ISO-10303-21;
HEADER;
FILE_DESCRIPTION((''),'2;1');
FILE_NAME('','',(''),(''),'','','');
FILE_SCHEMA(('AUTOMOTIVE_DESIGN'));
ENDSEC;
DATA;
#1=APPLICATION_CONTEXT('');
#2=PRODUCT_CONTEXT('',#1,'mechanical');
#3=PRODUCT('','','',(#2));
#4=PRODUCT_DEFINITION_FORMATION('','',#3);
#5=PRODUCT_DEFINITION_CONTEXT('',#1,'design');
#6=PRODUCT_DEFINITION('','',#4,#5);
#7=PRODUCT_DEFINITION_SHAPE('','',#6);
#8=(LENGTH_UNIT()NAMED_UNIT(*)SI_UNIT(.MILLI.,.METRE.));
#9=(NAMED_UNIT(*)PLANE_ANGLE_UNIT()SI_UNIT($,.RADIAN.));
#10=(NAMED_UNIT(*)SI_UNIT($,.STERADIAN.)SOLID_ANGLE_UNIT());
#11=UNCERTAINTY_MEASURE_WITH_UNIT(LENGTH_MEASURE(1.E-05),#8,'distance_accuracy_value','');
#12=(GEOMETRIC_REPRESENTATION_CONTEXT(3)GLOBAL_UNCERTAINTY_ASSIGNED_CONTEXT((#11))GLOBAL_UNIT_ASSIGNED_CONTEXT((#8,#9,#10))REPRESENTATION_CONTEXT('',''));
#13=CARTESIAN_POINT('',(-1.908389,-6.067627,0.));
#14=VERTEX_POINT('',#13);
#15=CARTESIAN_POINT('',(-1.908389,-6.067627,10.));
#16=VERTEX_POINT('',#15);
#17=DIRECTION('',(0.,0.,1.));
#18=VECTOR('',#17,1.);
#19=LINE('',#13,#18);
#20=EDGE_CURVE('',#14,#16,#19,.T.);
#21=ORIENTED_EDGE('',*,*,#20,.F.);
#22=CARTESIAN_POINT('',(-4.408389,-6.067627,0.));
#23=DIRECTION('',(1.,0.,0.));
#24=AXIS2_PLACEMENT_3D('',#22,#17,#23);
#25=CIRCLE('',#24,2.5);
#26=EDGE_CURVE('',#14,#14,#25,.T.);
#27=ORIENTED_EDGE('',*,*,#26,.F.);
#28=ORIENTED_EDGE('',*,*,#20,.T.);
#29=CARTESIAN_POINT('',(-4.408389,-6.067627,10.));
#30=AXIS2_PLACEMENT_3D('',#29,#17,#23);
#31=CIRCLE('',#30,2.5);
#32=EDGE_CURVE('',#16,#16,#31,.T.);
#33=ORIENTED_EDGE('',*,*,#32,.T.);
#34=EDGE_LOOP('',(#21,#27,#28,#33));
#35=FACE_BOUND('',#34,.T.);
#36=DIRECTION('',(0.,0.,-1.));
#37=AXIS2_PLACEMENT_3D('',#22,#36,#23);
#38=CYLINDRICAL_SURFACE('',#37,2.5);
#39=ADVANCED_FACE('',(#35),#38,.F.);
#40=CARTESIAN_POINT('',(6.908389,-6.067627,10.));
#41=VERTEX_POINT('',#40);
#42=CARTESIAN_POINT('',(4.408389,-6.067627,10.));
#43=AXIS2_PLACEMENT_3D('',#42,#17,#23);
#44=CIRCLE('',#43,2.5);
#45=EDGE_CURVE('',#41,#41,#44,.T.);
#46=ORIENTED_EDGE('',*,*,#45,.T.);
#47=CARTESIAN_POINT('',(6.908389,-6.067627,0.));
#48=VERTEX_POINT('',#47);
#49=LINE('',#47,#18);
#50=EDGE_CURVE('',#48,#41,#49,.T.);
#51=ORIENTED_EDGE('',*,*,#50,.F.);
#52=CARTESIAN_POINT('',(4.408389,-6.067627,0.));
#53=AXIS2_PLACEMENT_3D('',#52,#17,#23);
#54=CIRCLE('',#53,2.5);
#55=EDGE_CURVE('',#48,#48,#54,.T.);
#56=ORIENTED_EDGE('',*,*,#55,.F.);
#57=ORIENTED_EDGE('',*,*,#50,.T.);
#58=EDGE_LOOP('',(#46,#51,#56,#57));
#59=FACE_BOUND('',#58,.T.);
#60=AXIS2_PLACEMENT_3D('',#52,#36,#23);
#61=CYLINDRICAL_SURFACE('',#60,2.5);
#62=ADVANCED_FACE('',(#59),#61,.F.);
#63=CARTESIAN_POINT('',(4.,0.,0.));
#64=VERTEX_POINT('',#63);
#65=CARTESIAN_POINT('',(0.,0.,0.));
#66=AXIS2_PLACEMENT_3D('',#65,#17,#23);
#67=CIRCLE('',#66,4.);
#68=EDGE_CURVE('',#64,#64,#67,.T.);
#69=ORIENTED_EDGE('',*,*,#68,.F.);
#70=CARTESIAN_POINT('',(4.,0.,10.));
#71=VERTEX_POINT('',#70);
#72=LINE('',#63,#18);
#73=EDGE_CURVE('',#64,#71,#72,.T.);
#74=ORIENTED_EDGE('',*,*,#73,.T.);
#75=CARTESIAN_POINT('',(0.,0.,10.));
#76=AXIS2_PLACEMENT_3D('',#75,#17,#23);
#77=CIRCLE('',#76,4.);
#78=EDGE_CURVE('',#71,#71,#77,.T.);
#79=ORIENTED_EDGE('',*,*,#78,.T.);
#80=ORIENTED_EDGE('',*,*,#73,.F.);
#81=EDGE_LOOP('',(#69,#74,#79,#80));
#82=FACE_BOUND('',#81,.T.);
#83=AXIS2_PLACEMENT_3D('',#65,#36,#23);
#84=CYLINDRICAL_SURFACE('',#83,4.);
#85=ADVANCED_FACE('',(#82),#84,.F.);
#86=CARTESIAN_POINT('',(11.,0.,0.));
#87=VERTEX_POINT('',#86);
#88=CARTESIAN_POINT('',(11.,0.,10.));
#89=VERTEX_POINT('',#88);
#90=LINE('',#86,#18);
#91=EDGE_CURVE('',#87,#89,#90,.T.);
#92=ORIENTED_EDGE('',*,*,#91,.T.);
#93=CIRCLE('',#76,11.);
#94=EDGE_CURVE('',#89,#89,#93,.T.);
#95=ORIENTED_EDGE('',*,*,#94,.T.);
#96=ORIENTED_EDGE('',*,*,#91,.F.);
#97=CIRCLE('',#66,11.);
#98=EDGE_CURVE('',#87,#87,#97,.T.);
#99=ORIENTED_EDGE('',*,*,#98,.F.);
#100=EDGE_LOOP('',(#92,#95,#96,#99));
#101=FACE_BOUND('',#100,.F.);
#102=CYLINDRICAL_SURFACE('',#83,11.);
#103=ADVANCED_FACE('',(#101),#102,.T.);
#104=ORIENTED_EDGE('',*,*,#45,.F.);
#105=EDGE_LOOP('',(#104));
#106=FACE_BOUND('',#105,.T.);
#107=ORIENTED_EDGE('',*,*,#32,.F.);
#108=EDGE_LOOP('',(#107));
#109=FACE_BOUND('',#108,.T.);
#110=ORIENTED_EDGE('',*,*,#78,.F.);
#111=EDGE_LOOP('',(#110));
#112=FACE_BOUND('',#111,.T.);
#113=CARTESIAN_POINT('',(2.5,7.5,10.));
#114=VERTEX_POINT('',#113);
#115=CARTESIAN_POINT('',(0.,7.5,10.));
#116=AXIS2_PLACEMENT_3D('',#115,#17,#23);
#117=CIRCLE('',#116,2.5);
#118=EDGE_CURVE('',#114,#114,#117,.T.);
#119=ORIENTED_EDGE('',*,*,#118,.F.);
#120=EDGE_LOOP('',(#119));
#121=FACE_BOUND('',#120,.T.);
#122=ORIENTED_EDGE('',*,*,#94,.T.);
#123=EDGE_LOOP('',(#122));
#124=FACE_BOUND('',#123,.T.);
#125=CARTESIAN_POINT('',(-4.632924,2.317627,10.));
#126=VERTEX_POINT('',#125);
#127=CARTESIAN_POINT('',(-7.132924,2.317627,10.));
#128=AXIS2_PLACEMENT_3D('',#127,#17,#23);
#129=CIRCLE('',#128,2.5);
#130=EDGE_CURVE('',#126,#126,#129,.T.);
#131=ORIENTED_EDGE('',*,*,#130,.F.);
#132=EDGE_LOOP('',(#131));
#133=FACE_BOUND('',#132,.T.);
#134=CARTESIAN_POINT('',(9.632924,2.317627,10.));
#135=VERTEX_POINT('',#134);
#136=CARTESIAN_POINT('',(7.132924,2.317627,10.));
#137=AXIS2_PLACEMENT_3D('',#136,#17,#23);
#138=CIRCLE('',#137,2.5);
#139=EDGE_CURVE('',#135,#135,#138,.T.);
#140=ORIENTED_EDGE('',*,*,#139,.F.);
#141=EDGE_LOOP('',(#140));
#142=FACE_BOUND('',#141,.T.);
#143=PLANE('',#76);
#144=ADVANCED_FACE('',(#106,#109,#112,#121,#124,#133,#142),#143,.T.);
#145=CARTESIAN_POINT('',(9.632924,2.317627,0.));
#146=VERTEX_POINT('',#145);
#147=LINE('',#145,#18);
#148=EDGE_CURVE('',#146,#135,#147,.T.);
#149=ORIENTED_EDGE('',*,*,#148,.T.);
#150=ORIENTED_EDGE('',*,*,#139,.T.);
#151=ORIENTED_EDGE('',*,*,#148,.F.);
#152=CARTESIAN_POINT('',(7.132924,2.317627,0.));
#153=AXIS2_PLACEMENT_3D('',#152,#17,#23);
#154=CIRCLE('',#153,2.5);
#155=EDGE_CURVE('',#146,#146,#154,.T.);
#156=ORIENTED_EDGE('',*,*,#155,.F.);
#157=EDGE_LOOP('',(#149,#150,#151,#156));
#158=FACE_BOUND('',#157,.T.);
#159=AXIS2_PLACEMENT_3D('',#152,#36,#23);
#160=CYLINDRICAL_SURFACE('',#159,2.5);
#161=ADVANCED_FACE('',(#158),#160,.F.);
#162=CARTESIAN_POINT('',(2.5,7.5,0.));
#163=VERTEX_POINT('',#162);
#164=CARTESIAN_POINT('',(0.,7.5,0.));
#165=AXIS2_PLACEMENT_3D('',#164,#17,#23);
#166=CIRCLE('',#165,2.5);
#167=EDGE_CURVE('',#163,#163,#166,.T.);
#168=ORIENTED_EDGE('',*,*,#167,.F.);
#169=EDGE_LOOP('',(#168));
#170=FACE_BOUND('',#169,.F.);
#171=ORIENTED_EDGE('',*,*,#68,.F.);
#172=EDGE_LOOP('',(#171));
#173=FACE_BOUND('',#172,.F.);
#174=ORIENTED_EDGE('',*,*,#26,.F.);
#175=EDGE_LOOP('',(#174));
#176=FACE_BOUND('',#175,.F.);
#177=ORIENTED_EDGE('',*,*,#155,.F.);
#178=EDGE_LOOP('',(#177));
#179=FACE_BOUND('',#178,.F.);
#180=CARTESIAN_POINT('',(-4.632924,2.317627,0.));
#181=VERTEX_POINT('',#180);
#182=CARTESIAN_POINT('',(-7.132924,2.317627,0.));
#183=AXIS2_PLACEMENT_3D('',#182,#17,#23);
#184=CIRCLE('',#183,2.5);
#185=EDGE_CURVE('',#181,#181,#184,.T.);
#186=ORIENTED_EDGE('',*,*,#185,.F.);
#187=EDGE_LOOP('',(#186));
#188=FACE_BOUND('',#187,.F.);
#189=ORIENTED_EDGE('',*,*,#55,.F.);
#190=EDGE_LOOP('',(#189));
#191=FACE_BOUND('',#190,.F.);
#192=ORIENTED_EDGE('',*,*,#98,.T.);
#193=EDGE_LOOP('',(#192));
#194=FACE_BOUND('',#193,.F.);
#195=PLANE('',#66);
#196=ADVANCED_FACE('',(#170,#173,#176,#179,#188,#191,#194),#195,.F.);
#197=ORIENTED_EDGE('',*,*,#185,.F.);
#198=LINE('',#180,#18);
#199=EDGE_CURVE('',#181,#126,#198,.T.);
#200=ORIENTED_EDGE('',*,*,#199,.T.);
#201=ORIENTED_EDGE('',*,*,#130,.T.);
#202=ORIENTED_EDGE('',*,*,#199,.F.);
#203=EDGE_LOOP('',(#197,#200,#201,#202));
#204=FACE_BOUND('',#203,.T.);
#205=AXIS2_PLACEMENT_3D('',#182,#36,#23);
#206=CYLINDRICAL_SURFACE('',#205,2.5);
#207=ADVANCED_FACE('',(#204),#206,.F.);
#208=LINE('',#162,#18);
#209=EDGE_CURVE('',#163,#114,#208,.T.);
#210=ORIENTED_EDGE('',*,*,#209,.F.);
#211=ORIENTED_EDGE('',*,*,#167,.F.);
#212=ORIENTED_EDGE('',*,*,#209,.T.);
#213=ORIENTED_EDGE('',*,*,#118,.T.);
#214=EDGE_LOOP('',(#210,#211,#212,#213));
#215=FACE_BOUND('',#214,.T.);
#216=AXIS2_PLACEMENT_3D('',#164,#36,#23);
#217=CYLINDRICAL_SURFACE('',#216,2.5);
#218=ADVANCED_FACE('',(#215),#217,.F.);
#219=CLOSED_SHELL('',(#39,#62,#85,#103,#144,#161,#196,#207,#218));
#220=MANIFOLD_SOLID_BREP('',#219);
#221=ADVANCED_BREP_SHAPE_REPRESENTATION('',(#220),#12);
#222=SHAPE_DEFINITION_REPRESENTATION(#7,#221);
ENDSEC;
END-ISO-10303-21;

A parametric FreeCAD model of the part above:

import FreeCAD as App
import Part
import Sketcher
from FreeCAD import Vector
Q = App.Units.Quantity

doc = App.newDocument("Part")
body = doc.addObject("PartDesign::Body", "Body")

sketch1 = doc.addObject("Sketcher::SketchObject", "Sketch")
body.addObject(sketch1)
sketch1.AttachmentSupport = (doc.XY_Plane, [""])
sketch1.MapMode = "FlatFace"
sketch1.addGeometry(Part.Circle(Vector(0, 0, 0), Vector(0, 0, 1), 11), False)
sketch1.addGeometry(Part.Circle(Vector(-4.4, -6.1, 0), Vector(0, 0, 1), 2.5), False)
sketch1.addGeometry(Part.Circle(Vector(4.4, -6.1, 0), Vector(0, 0, 1), 2.5), False)
sketch1.addGeometry(Part.Circle(Vector(0, 0, 0), Vector(0, 0, 1), 4), False)
sketch1.addGeometry(Part.Circle(Vector(-7.1, 2.3, 0), Vector(0, 0, 1), 2.5), False)
sketch1.addGeometry(Part.Circle(Vector(7.1, 2.3, 0), Vector(0, 0, 1), 2.5), False)
sketch1.addGeometry(Part.Circle(Vector(0, 7.5, 0), Vector(0, 0, 1), 2.5), False)
sketch1.addConstraint(Sketcher.Constraint("Coincident", 0, 3, -1, 1))
sketch1.addConstraint(Sketcher.Constraint("Coincident", 3, 3, -1, 1))
sketch1.addConstraint(Sketcher.Constraint("Equal", 1, 2))
sketch1.addConstraint(Sketcher.Constraint("Equal", 2, 4))
sketch1.addConstraint(Sketcher.Constraint("Equal", 4, 5))
sketch1.addConstraint(Sketcher.Constraint("Equal", 5, 6))
sketch1.addConstraint(Sketcher.Constraint("Symmetric", 1, 3, 2, 3, -2))
sketch1.addConstraint(Sketcher.Constraint("Symmetric", 4, 3, 5, 3, -2))
sketch1.addConstraint(Sketcher.Constraint("PointOnObject", 6, 3, -2))
sketch1.addConstraint(Sketcher.Constraint("Diameter", 0, Q("22 mm")))
sketch1.addConstraint(Sketcher.Constraint("Diameter", 1, Q("5 mm")))
sketch1.addConstraint(Sketcher.Constraint("Diameter", 3, Q("8 mm")))
sketch1.addConstraint(Sketcher.Constraint("DistanceY", -1, 1, 6, 3, Q("7.5 mm")))
sketch1.addConstraint(Sketcher.Constraint("DistanceX", 1, 3, -1, 1, Q("4.408389 mm")))
sketch1.addConstraint(Sketcher.Constraint("DistanceY", 1, 3, -1, 1, Q("6.067627 mm")))
sketch1.addConstraint(Sketcher.Constraint("DistanceX", 4, 3, -1, 1, Q("7.132924 mm")))
sketch1.addConstraint(Sketcher.Constraint("DistanceY", -1, 1, 4, 3, Q("2.317627 mm")))
pad1 = doc.addObject("PartDesign::Pad", "Pad")
body.addObject(pad1)
pad1.Profile = sketch1
pad1.Length = 10

doc.recompute()
